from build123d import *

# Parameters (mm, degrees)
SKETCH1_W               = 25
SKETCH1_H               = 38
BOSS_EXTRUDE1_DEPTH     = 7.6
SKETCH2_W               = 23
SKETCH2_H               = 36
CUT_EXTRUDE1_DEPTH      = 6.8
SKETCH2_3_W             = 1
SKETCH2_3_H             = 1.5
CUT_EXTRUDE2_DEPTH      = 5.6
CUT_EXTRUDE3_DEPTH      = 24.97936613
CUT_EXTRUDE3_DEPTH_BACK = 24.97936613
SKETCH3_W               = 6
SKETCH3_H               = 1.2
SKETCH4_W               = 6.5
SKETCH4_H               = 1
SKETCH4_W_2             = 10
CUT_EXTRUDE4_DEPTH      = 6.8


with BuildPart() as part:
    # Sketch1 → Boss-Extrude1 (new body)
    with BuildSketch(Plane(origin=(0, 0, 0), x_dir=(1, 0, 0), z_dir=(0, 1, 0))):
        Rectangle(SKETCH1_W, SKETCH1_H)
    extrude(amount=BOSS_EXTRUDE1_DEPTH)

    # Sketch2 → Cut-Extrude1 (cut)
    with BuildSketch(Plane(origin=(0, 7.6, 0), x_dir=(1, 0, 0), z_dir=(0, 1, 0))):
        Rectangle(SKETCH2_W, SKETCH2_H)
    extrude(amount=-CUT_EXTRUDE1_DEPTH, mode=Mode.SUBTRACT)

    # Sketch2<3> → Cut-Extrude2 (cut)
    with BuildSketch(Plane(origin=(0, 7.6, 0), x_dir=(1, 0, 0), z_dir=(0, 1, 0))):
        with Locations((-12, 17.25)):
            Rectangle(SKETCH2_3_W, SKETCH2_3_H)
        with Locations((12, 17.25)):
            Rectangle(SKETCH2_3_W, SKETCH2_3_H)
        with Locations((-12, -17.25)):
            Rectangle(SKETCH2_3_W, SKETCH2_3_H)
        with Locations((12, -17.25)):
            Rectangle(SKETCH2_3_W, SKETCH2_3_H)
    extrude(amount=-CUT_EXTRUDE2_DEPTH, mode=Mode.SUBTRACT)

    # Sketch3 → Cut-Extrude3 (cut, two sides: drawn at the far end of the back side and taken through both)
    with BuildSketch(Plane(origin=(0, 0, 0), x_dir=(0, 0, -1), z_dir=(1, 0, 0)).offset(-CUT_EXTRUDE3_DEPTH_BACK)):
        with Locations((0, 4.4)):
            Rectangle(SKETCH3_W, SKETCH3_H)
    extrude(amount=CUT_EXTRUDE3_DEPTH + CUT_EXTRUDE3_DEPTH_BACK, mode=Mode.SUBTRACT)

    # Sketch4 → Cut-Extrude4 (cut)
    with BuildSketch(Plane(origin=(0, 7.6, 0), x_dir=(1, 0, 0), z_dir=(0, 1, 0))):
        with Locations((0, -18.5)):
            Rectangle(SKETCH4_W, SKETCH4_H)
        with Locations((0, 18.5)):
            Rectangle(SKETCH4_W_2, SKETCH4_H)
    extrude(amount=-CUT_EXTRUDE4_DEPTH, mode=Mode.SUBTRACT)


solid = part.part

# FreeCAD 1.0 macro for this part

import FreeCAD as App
import Part
import Sketcher

V = App.Vector
Q = App.Units.Quantity


def add_polygon(sketch, points):
    """Adds a closed chain of lines whose ends are joined by coincident constraints."""
    first, n = sketch.GeometryCount, len(points)
    for a, b in zip(points, points[1:] + points[:1]):
        sketch.addGeometry(Part.LineSegment(App.Vector(*a, 0), App.Vector(*b, 0)), False)
    for i in range(n):
        sketch.addConstraint(Sketcher.Constraint("Coincident", first + i, 2, first + (i + 1) % n, 1))

doc = App.newDocument("Part")
body = doc.addObject("PartDesign::Body", "Body")

# Sketch on XZ plane
sketch1 = body.newObject("Sketcher::SketchObject", "Sketch")
sketch1.AttachmentSupport = (doc.getObject("XZ_Plane"), [""])
sketch1.MapMode = "FlatFace"
add_polygon(sketch1, [(-12.5, -19), (-12.5, 19), (12.5, 19), (12.5, -19)])  # lines 0-3
sketch1.addConstraint(Sketcher.Constraint("Vertical", 0))
sketch1.addConstraint(Sketcher.Constraint("Horizontal", 1))
sketch1.addConstraint(Sketcher.Constraint("Vertical", 2))
sketch1.addConstraint(Sketcher.Constraint("Horizontal", 3))
sketch1.addConstraint(Sketcher.Constraint("Symmetric", 0, 2, 2, 2, -1, 1))
sketch1.addConstraint(Sketcher.Constraint("DistanceX", 1, 1, 1, 2, Q("25 mm")))
sketch1.addConstraint(Sketcher.Constraint("DistanceY", 0, 1, 0, 2, Q("38 mm")))
pad1 = body.newObject("PartDesign::Pad", "Pad")
pad1.Profile = sketch1
pad1.Length = 7.6
pad1.Reversed = True

# Sketch on XZ plane
sketch2 = body.newObject("Sketcher::SketchObject", "Sketch001")
sketch2.AttachmentSupport = (doc.getObject("XZ_Plane"), [""])
sketch2.MapMode = "FlatFace"
sketch2.AttachmentOffset = App.Placement(V(0, 0, -7.6), App.Rotation())
add_polygon(sketch2, [(-11.5, -18), (-11.5, 18), (11.5, 18), (11.5, -18)])  # lines 0-3
sketch2.addConstraint(Sketcher.Constraint("Vertical", 0))
sketch2.addConstraint(Sketcher.Constraint("Horizontal", 1))
sketch2.addConstraint(Sketcher.Constraint("Vertical", 2))
sketch2.addConstraint(Sketcher.Constraint("Horizontal", 3))
sketch2.addConstraint(Sketcher.Constraint("Symmetric", 0, 2, 2, 2, -1, 1))
sketch2.addConstraint(Sketcher.Constraint("DistanceX", 1, 1, 1, 2, Q("23 mm")))
sketch2.addConstraint(Sketcher.Constraint("DistanceY", 0, 1, 0, 2, Q("36 mm")))
pocket1 = body.newObject("PartDesign::Pocket", "Pocket")
pocket1.Profile = sketch2
pocket1.Length = 6.8
pocket1.Reversed = True

# Sketch on XZ plane
sketch3 = body.newObject("Sketcher::SketchObject", "Sketch002")
sketch3.AttachmentSupport = (doc.getObject("XZ_Plane"), [""])
sketch3.MapMode = "FlatFace"
sketch3.AttachmentOffset = App.Placement(V(0, 0, -7.6), App.Rotation())
add_polygon(sketch3, [(-12.5, -18), (-12.5, -16.5), (-11.5, -16.5), (-11.5, -18)])  # lines 0-3
add_polygon(sketch3, [(11.5, -18), (11.5, -16.5), (12.5, -16.5), (12.5, -18)])  # lines 4-7
add_polygon(sketch3, [(-12.5, 16.5), (-12.5, 18), (-11.5, 18), (-11.5, 16.5)])  # lines 8-11
add_polygon(sketch3, [(11.5, 16.5), (11.5, 18), (12.5, 18), (12.5, 16.5)])  # lines 12-15
sketch3.addConstraint(Sketcher.Constraint("Vertical", 0))
sketch3.addConstraint(Sketcher.Constraint("Horizontal", 1))
sketch3.addConstraint(Sketcher.Constraint("Vertical", 2))
sketch3.addConstraint(Sketcher.Constraint("Horizontal", 3))
sketch3.addConstraint(Sketcher.Constraint("Vertical", 4))
sketch3.addConstraint(Sketcher.Constraint("Horizontal", 5))
sketch3.addConstraint(Sketcher.Constraint("Vertical", 6))
sketch3.addConstraint(Sketcher.Constraint("Horizontal", 7))
sketch3.addConstraint(Sketcher.Constraint("Vertical", 8))
sketch3.addConstraint(Sketcher.Constraint("Horizontal", 9))
sketch3.addConstraint(Sketcher.Constraint("Vertical", 10))
sketch3.addConstraint(Sketcher.Constraint("Horizontal", 11))
sketch3.addConstraint(Sketcher.Constraint("Vertical", 12))
sketch3.addConstraint(Sketcher.Constraint("Horizontal", 13))
sketch3.addConstraint(Sketcher.Constraint("Vertical", 14))
sketch3.addConstraint(Sketcher.Constraint("Horizontal", 15))
sketch3.addConstraint(Sketcher.Constraint("Symmetric", 6, 2, 8, 2, -1, 1))
sketch3.addConstraint(Sketcher.Constraint("Symmetric", 4, 2, 10, 2, -1, 1))
sketch3.addConstraint(Sketcher.Constraint("Symmetric", 2, 2, 12, 2, -1, 1))
sketch3.addConstraint(Sketcher.Constraint("Symmetric", 0, 2, 14, 2, -1, 1))
sketch3.addConstraint(Sketcher.Constraint("Symmetric", 1, 2, 4, 2, -2))
sketch3.addConstraint(Sketcher.Constraint("Symmetric", 3, 2, 6, 2, -2))
sketch3.addConstraint(Sketcher.Constraint("DistanceX", 1, 1, 1, 2, Q("1 mm")))
sketch3.addConstraint(Sketcher.Constraint("DistanceY", 0, 1, 0, 2, Q("1.5 mm")))
sketch3.addConstraint(Sketcher.Constraint("DistanceY", 2, 2, -1, 1, Q("18 mm")))
sketch3.addConstraint(Sketcher.Constraint("DistanceX", 1, 2, 4, 2, Q("23 mm")))
pocket2 = body.newObject("PartDesign::Pocket", "Pocket001")
pocket2.Profile = sketch3
pocket2.Length = 5.6
pocket2.Reversed = True

# Sketch on YZ plane
sketch4 = body.newObject("Sketcher::SketchObject", "Sketch003")
sketch4.AttachmentSupport = (doc.getObject("YZ_Plane"), [""])
sketch4.MapMode = "FlatFace"
add_polygon(sketch4, [(5, 3), (3.8, 3), (3.8, -3), (5, -3)])  # lines 0-3
sketch4.addConstraint(Sketcher.Constraint("Horizontal", 0))
sketch4.addConstraint(Sketcher.Constraint("Vertical", 1))
sketch4.addConstraint(Sketcher.Constraint("Horizontal", 2))
sketch4.addConstraint(Sketcher.Constraint("Vertical", 3))
sketch4.addConstraint(Sketcher.Constraint("DistanceY", 1, 2, 1, 1, Q("6 mm")))
sketch4.addConstraint(Sketcher.Constraint("DistanceX", 0, 2, 0, 1, Q("1.2 mm")))
sketch4.addConstraint(Sketcher.Constraint("DistanceY", -1, 1, 0, 2, Q("3 mm")))
sketch4.addConstraint(Sketcher.Constraint("DistanceX", -1, 1, 2, 2, Q("5 mm")))
pocket3 = body.newObject("PartDesign::Pocket", "Pocket002")
pocket3.Profile = sketch4
pocket3.Type = "ThroughAll"
pocket3.Midplane = True

# Sketch on XZ plane
sketch5 = body.newObject("Sketcher::SketchObject", "Sketch004")
sketch5.AttachmentSupport = (doc.getObject("XZ_Plane"), [""])
sketch5.MapMode = "FlatFace"
sketch5.AttachmentOffset = App.Placement(V(0, 0, -7.6), App.Rotation())
add_polygon(sketch5, [(-3.25, 18), (-3.25, 19), (3.25, 19), (3.25, 18)])  # lines 0-3
add_polygon(sketch5, [(-5, -19), (-5, -18), (5, -18), (5, -19)])  # lines 4-7
sketch5.addConstraint(Sketcher.Constraint("Vertical", 0))
sketch5.addConstraint(Sketcher.Constraint("Horizontal", 1))
sketch5.addConstraint(Sketcher.Constraint("Vertical", 2))
sketch5.addConstraint(Sketcher.Constraint("Horizontal", 3))
sketch5.addConstraint(Sketcher.Constraint("Vertical", 4))
sketch5.addConstraint(Sketcher.Constraint("Horizontal", 5))
sketch5.addConstraint(Sketcher.Constraint("Vertical", 6))
sketch5.addConstraint(Sketcher.Constraint("Horizontal", 7))
sketch5.addConstraint(Sketcher.Constraint("Equal", 2, 4))
sketch5.addConstraint(Sketcher.Constraint("DistanceX", 5, 1, 5, 2, Q("10 mm")))
sketch5.addConstraint(Sketcher.Constraint("DistanceY", 0, 1, 0, 2, Q("1 mm")))
sketch5.addConstraint(Sketcher.Constraint("DistanceX", 1, 1, 1, 2, Q("6.5 mm")))
sketch5.addConstraint(Sketcher.Constraint("DistanceY", -1, 1, 0, 2, Q("19 mm")))
sketch5.addConstraint(Sketcher.Constraint("DistanceX", 4, 2, -1, 1, Q("5 mm")))
sketch5.addConstraint(Sketcher.Constraint("DistanceY", 4, 2, -1, 1, Q("18 mm")))
sketch5.addConstraint(Sketcher.Constraint("DistanceX", 0, 2, -1, 1, Q("3.25 mm")))
pocket4 = body.newObject("PartDesign::Pocket", "Pocket003")
pocket4.Profile = sketch5
pocket4.Length = 6.8
pocket4.Reversed = True

doc.recompute()
